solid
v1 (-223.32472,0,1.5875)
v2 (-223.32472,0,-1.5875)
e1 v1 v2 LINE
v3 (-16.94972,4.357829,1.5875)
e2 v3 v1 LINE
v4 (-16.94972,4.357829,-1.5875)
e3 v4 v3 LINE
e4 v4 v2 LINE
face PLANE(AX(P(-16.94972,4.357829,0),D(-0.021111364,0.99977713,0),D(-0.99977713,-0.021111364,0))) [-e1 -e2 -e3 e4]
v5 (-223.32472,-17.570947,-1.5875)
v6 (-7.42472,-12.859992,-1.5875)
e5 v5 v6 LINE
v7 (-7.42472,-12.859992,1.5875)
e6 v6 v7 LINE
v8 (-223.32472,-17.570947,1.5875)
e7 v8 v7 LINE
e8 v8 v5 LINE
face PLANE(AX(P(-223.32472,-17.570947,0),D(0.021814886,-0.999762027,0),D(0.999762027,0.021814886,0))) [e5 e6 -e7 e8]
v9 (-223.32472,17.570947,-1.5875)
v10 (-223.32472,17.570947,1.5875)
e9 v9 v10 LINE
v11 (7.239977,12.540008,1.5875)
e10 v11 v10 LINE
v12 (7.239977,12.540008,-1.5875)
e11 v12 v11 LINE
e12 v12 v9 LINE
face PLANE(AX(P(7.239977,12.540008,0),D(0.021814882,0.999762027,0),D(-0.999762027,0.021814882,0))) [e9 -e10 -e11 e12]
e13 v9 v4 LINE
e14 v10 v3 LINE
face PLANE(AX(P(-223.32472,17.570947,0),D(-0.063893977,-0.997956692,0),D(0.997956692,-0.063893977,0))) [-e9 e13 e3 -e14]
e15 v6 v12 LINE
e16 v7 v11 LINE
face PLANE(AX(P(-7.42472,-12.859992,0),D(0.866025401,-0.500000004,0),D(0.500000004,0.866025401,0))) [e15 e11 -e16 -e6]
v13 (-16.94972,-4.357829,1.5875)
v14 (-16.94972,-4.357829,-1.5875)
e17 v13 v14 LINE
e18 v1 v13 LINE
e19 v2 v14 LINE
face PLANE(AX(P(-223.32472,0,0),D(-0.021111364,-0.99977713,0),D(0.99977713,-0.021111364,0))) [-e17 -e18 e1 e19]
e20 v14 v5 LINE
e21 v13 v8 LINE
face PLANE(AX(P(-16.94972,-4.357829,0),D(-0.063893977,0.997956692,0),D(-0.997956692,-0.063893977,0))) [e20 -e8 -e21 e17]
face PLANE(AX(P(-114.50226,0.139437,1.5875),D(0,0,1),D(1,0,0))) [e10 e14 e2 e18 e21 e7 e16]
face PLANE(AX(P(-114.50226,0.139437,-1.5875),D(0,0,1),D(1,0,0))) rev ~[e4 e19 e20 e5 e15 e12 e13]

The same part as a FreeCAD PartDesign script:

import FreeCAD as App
import Part
import Sketcher

V = App.Vector
Q = App.Units.Quantity

doc = App.newDocument("Part")
body = doc.addObject("PartDesign::Body", "Body")

# Sketch on XY plane
sketch1 = body.newObject("Sketcher::SketchObject", "Sketch")
sketch1.AttachmentSupport = (doc.getObject("XY_Plane"), [""])
sketch1.MapMode = "FlatFace"
sketch1.addGeometry([
    Part.LineSegment(V(-223, -18, 0), V(-7, -13, 0)),  # 0
    Part.LineSegment(V(-7, -13, 0), V(7, 13, 0)),  # 1
    Part.LineSegment(V(7, 13, 0), V(-223, 18, 0)),  # 2
    Part.LineSegment(V(-223, 18, 0), V(-17, 4, 0)),  # 3
    Part.LineSegment(V(-17, 4, 0), V(-223, 0, 0)),  # 4
    Part.LineSegment(V(-223, 0, 0), V(-17, -4, 0)),  # 5
    Part.LineSegment(V(-17, -4, 0), V(-223, -18, 0)),  # 6
], False)
sketch1.addConstraint([
    Sketcher.Constraint("Coincident", 0, 2, 1, 1),
    Sketcher.Constraint("Coincident", 1, 2, 2, 1),
    Sketcher.Constraint("Coincident", 2, 2, 3, 1),
    Sketcher.Constraint("Coincident", 3, 2, 4, 1),
    Sketcher.Constraint("Coincident", 4, 2, 5, 1),
    Sketcher.Constraint("Coincident", 5, 2, 6, 1),
    Sketcher.Constraint("Coincident", 6, 2, 0, 1),
    Sketcher.Constraint("Symmetric", 3, 2, 5, 2, -1),
    Sketcher.Constraint("Symmetric", 2, 2, 6, 2, -1),
    Sketcher.Constraint("PointOnObject", 4, 2, -1),
    Sketcher.Constraint("Vertical", 2, 2, 4, 2),
    Sketcher.Constraint("Angle", 1, Q("60 deg")),
    Sketcher.Constraint("DistanceY", 0, 2, 1, 2, Q("1 in")),
    Sketcher.Constraint("DistanceX", 2, 2, 0, 2, Q("8.5 in")),
    Sketcher.Constraint("Angle", 0, Q("1.25 deg")),
    Sketcher.Constraint("Angle", 2, Q("178.75 deg")),
    Sketcher.Constraint("DistanceX", 3, 2, 0, 2, Q("0.375 in")),
    Sketcher.Constraint("Distance", 3, Q("206.797551 mm")),
    Sketcher.Constraint("DistanceX", 0, 2, -1, 1, Q("7.42472 mm")),
])
pad1 = body.newObject("PartDesign::Pad", "Pad")
pad1.Profile = sketch1
pad1.Length = Q("0.125 in")
pad1.Midplane = True

doc.recompute()
